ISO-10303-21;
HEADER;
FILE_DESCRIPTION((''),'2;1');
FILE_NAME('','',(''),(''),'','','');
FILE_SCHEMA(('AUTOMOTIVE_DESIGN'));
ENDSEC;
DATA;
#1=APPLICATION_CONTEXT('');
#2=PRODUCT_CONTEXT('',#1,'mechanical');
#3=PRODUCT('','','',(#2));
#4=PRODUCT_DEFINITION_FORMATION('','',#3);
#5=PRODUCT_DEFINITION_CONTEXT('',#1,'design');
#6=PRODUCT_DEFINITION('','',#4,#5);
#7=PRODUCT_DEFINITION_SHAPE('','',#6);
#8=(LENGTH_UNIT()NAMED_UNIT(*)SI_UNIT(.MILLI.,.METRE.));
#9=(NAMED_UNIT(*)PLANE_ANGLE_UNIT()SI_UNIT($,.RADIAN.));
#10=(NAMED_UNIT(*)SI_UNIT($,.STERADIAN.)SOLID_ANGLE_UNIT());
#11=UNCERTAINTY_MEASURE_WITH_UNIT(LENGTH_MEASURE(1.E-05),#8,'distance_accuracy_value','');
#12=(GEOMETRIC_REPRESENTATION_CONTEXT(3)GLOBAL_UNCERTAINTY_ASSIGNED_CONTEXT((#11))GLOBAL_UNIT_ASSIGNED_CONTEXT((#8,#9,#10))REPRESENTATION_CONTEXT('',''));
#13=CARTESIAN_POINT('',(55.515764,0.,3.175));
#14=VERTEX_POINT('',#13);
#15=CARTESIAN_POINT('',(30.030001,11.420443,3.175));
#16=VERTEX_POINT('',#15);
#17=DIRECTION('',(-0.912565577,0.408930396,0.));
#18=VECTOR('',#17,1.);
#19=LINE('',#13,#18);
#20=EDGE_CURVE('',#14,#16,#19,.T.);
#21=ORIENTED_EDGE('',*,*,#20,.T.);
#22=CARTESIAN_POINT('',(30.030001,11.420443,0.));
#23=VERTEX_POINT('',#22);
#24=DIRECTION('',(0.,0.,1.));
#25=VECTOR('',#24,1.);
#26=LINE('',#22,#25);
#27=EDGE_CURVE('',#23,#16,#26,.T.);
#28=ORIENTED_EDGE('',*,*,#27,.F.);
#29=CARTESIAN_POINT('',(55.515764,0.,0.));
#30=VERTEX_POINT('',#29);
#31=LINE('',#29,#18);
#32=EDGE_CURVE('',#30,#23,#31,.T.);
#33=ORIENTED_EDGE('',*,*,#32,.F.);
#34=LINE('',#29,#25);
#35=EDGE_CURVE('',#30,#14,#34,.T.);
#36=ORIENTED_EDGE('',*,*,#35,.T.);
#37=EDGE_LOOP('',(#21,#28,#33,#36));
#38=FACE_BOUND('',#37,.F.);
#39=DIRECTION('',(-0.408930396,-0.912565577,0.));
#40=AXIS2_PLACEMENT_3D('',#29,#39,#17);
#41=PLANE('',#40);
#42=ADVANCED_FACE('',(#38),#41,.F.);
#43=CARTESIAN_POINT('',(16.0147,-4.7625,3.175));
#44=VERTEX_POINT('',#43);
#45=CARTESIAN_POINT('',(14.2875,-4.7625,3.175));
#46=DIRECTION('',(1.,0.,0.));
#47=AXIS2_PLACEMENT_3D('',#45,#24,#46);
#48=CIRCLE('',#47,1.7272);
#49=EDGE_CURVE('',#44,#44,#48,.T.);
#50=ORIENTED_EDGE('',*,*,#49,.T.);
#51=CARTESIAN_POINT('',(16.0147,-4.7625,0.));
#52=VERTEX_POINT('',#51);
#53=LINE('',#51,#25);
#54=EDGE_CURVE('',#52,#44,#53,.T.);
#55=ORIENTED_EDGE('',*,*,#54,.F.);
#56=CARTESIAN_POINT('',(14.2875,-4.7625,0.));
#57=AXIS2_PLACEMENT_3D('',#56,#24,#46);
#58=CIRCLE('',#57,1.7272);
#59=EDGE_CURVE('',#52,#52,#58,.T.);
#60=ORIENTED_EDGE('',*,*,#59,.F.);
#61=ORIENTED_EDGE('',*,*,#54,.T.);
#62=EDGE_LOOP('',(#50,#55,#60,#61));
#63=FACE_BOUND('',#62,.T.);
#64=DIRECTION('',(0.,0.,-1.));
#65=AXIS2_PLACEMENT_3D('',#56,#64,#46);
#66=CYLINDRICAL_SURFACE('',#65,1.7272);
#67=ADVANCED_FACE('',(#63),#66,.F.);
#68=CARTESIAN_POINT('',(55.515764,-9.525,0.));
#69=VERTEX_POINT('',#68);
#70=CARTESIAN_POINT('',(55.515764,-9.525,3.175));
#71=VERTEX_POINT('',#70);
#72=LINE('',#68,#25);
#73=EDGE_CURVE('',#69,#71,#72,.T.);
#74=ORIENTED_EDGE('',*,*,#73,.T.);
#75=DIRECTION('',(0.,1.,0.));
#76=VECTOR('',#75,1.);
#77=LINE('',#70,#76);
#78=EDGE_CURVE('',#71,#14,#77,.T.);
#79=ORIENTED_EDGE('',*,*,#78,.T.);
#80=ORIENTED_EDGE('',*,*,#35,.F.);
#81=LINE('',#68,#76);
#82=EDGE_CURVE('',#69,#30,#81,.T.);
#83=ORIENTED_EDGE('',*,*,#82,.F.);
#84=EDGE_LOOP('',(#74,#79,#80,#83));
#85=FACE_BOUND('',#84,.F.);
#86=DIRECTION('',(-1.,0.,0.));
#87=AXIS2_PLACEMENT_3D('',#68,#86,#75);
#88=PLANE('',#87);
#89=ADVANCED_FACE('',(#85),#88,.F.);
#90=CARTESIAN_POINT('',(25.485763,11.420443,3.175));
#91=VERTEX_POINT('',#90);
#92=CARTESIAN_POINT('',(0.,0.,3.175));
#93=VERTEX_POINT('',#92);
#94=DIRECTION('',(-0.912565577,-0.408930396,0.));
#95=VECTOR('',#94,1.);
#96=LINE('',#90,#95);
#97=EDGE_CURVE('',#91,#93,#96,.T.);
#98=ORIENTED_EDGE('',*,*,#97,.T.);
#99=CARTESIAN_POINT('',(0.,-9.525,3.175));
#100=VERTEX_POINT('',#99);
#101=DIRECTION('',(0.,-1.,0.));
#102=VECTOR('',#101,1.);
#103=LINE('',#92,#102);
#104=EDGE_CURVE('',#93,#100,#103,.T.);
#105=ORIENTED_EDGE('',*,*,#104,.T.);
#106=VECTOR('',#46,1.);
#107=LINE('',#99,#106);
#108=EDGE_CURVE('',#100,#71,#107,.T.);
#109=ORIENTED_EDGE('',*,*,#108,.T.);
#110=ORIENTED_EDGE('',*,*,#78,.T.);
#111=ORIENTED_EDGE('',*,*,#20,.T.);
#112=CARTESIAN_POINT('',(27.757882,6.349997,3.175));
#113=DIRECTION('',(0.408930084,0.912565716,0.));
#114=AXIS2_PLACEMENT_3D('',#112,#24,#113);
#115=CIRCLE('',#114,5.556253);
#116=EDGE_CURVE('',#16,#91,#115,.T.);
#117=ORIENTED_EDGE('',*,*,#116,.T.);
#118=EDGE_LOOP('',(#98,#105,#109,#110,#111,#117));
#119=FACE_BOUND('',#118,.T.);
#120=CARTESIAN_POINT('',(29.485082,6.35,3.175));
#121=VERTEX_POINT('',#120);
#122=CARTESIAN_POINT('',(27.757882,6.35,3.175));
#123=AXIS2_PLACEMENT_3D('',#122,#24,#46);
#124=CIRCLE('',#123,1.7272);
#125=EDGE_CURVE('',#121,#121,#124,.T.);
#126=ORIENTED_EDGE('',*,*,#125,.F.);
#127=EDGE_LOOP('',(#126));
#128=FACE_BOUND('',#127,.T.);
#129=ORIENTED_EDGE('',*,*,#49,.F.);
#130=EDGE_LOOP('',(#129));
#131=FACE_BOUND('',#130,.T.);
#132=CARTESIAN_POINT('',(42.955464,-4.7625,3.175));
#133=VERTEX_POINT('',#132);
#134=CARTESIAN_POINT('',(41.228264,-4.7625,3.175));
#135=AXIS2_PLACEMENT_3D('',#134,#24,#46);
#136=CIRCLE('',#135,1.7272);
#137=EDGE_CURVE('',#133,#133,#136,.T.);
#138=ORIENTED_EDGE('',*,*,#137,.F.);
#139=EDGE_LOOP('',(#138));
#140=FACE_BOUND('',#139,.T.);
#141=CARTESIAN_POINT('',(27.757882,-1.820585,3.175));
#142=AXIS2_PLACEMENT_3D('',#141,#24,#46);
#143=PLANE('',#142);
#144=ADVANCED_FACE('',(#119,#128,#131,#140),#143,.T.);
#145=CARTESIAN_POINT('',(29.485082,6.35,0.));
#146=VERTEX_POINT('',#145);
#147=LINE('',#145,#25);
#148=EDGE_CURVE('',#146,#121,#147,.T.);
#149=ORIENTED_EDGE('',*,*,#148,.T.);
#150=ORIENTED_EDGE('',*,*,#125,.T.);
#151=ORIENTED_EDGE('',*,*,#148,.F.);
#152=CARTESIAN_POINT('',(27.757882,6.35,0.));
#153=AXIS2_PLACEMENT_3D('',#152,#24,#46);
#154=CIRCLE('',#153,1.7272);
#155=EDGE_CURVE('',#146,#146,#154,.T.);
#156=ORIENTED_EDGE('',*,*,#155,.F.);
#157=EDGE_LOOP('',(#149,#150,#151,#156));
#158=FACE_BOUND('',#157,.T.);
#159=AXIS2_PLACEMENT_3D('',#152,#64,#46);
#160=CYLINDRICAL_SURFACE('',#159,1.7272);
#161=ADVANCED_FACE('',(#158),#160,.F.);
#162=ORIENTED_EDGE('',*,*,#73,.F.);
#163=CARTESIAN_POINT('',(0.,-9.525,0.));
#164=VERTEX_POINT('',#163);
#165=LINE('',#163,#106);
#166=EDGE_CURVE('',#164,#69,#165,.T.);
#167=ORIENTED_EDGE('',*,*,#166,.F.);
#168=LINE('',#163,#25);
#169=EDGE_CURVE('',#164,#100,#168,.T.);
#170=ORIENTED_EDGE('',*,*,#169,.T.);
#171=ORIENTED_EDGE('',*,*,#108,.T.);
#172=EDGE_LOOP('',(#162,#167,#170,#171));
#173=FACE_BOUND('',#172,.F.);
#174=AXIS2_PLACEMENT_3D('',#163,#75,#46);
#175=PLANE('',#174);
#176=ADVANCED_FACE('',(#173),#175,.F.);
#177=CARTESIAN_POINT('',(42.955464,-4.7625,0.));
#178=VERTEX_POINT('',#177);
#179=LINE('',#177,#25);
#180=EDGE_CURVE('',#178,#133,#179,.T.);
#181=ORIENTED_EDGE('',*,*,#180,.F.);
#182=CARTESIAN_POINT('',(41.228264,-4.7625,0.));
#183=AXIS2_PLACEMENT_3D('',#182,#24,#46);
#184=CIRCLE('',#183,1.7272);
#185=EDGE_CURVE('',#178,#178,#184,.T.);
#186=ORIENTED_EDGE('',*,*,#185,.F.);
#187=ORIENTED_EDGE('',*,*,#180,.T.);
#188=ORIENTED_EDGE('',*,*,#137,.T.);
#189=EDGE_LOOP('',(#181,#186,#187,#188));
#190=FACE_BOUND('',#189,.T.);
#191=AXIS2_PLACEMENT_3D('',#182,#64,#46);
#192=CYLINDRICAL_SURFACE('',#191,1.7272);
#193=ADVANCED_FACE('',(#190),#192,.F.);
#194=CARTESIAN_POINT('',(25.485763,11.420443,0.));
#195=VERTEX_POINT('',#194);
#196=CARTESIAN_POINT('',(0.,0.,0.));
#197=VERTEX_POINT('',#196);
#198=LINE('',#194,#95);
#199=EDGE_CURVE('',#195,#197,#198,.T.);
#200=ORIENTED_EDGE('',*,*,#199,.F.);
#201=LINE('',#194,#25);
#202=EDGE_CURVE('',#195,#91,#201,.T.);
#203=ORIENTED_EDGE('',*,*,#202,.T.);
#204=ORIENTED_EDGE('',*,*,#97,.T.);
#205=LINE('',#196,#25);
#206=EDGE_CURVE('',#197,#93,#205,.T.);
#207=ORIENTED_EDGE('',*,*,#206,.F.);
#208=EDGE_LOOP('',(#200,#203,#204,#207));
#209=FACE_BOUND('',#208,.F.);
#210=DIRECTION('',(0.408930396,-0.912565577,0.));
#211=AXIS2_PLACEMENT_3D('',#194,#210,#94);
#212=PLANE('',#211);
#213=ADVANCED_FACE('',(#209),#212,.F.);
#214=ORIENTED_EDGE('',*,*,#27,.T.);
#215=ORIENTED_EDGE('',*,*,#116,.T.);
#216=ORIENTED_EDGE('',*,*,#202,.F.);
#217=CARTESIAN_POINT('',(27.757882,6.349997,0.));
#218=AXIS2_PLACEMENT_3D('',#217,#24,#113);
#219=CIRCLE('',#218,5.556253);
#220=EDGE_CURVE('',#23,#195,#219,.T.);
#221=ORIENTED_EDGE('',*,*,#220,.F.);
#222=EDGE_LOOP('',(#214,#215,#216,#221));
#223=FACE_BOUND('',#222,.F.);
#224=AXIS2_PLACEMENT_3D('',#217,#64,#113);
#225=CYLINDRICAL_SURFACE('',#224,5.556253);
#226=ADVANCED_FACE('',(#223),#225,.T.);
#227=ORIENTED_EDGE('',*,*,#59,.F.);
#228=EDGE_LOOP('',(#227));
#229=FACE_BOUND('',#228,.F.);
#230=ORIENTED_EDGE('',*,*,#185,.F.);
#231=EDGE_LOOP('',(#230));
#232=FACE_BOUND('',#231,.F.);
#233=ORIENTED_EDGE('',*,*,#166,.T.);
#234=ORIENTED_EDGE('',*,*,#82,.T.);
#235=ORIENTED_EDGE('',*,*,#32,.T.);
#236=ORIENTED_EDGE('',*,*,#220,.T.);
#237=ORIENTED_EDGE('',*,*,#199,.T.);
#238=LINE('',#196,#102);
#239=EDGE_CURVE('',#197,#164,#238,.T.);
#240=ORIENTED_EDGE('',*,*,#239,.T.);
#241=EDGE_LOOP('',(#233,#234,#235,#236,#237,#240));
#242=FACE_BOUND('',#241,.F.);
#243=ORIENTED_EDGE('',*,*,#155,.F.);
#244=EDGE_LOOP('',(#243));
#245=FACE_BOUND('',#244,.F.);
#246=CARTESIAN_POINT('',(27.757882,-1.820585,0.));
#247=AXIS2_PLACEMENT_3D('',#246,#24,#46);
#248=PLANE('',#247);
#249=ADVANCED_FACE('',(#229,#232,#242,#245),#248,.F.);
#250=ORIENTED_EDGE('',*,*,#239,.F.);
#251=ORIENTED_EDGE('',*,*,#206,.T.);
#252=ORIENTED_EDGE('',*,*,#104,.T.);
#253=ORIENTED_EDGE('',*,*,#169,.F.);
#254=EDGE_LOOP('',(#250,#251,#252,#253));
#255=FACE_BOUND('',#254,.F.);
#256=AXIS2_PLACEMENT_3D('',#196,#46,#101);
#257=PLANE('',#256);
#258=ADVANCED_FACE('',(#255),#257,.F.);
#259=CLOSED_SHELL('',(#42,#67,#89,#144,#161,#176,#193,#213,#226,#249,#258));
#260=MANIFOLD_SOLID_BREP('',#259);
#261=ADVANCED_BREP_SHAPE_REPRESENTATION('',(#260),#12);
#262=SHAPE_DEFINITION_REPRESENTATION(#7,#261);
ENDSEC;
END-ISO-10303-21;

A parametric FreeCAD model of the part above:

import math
import FreeCAD as App
import Part
import Sketcher
Q = App.Units.Quantity

doc = App.newDocument("Part")
params = doc.addObject("Spreadsheet::Sheet", "Params")
for row, (alias, value) in enumerate([
    ("sketch1_diameter", "0.136 in"),
    ("sketch1_radius", "0.2187501 in"),
    ("sketch1_height", "0.375 in"),
    ("pad1_length", "0.125 in"),
], start=1):
    params.set(f"A{row}", alias)
    params.set(f"B{row}", "=" + value)
    params.setAlias(f"B{row}", alias)

body = doc.addObject("PartDesign::Body", "Body")

sketch1 = body.newObject("Sketcher::SketchObject", "Sketch")
sketch1.AttachmentSupport = (doc.getObject("XY_Plane"), [""])
sketch1.MapMode = "FlatFace"
sketch1.addGeometry([
    Part.LineSegment(App.Vector(0, 0, 0), App.Vector(0, -9.5, 0)),
    Part.LineSegment(App.Vector(0, -9.5, 0), App.Vector(55.5, -9.5, 0)),
    Part.LineSegment(App.Vector(55.5, -9.5, 0), App.Vector(55.5, 0, 0)),
    Part.LineSegment(App.Vector(55.5, 0, 0), App.Vector(30, 11.4, 0)),
    Part.ArcOfCircle(Part.Circle(App.Vector(27.8, 6.3, 0), App.Vector(0, 0, 1), 5.6), math.radians(66), math.radians(114)),
    Part.LineSegment(App.Vector(25.5, 11.4, 0), App.Vector(0, 0, 0)),
    Part.Circle(App.Vector(14.3, -4.8, 0), App.Vector(0, 0, 1), 1.7),
    Part.Circle(App.Vector(41.2, -4.8, 0), App.Vector(0, 0, 1), 1.7),
    Part.Circle(App.Vector(27.8, 6.3, 0), App.Vector(0, 0, 1), 1.7),
], False)
sketch1.addConstraint([
    Sketcher.Constraint("Coincident", 0, 2, 1, 1),
    Sketcher.Constraint("Coincident", 1, 2, 2, 1),
    Sketcher.Constraint("Coincident", 2, 2, 3, 1),
    Sketcher.Constraint("Tangent", 3, 2, 4, 1),
    Sketcher.Constraint("Tangent", 4, 2, 5, 1),
    Sketcher.Constraint("Coincident", 5, 2, 0, 1),
    Sketcher.Constraint("Vertical", 0),
    Sketcher.Constraint("Horizontal", 1),
    Sketcher.Constraint("Vertical", 2),
    Sketcher.Constraint("Coincident", 5, 2, -1, 1),
    Sketcher.Constraint("Coincident", 8, 3, 4, 3),
    Sketcher.Constraint("Equal", 6, 7),
    Sketcher.Constraint("Equal", 7, 8),
    Sketcher.Constraint("PointOnObject", 2, 2, -1),
    Sketcher.Constraint("Horizontal", 6, 3, 7, 3),
    Sketcher.Constraint("Horizontal", 3, 2, 4, 2),
    Sketcher.Constraint("Diameter", 6, Q("0.136 in")),
    Sketcher.Constraint("Radius", 4, Q("0.2187501 in")),
    Sketcher.Constraint("DistanceY", 0, 2, 0, 1, Q("0.375 in")),
    Sketcher.Constraint("DistanceY", -1, 1, 4, 3, Q("0.2499999 in")),
    Sketcher.Constraint("DistanceX", -1, 1, 6, 3, Q("0.5625 in")),
    Sketcher.Constraint("DistanceY", 6, 3, -1, 1, Q("0.1875 in")),
    Sketcher.Constraint("DistanceX", 7, 3, 1, 2, Q("0.5625 in")),
    Sketcher.Constraint("DistanceX", -1, 1, 3, 2, 30.030001),
])
sketch1.setExpression("Constraints[16]", "Params.sketch1_diameter")
sketch1.setExpression("Constraints[17]", "Params.sketch1_radius")
sketch1.setExpression("Constraints[18]", "Params.sketch1_height")
pad1 = body.newObject("PartDesign::Pad", "Pad")
pad1.Profile = sketch1
pad1.setExpression("Length", "Params.pad1_length")

doc.recompute()
